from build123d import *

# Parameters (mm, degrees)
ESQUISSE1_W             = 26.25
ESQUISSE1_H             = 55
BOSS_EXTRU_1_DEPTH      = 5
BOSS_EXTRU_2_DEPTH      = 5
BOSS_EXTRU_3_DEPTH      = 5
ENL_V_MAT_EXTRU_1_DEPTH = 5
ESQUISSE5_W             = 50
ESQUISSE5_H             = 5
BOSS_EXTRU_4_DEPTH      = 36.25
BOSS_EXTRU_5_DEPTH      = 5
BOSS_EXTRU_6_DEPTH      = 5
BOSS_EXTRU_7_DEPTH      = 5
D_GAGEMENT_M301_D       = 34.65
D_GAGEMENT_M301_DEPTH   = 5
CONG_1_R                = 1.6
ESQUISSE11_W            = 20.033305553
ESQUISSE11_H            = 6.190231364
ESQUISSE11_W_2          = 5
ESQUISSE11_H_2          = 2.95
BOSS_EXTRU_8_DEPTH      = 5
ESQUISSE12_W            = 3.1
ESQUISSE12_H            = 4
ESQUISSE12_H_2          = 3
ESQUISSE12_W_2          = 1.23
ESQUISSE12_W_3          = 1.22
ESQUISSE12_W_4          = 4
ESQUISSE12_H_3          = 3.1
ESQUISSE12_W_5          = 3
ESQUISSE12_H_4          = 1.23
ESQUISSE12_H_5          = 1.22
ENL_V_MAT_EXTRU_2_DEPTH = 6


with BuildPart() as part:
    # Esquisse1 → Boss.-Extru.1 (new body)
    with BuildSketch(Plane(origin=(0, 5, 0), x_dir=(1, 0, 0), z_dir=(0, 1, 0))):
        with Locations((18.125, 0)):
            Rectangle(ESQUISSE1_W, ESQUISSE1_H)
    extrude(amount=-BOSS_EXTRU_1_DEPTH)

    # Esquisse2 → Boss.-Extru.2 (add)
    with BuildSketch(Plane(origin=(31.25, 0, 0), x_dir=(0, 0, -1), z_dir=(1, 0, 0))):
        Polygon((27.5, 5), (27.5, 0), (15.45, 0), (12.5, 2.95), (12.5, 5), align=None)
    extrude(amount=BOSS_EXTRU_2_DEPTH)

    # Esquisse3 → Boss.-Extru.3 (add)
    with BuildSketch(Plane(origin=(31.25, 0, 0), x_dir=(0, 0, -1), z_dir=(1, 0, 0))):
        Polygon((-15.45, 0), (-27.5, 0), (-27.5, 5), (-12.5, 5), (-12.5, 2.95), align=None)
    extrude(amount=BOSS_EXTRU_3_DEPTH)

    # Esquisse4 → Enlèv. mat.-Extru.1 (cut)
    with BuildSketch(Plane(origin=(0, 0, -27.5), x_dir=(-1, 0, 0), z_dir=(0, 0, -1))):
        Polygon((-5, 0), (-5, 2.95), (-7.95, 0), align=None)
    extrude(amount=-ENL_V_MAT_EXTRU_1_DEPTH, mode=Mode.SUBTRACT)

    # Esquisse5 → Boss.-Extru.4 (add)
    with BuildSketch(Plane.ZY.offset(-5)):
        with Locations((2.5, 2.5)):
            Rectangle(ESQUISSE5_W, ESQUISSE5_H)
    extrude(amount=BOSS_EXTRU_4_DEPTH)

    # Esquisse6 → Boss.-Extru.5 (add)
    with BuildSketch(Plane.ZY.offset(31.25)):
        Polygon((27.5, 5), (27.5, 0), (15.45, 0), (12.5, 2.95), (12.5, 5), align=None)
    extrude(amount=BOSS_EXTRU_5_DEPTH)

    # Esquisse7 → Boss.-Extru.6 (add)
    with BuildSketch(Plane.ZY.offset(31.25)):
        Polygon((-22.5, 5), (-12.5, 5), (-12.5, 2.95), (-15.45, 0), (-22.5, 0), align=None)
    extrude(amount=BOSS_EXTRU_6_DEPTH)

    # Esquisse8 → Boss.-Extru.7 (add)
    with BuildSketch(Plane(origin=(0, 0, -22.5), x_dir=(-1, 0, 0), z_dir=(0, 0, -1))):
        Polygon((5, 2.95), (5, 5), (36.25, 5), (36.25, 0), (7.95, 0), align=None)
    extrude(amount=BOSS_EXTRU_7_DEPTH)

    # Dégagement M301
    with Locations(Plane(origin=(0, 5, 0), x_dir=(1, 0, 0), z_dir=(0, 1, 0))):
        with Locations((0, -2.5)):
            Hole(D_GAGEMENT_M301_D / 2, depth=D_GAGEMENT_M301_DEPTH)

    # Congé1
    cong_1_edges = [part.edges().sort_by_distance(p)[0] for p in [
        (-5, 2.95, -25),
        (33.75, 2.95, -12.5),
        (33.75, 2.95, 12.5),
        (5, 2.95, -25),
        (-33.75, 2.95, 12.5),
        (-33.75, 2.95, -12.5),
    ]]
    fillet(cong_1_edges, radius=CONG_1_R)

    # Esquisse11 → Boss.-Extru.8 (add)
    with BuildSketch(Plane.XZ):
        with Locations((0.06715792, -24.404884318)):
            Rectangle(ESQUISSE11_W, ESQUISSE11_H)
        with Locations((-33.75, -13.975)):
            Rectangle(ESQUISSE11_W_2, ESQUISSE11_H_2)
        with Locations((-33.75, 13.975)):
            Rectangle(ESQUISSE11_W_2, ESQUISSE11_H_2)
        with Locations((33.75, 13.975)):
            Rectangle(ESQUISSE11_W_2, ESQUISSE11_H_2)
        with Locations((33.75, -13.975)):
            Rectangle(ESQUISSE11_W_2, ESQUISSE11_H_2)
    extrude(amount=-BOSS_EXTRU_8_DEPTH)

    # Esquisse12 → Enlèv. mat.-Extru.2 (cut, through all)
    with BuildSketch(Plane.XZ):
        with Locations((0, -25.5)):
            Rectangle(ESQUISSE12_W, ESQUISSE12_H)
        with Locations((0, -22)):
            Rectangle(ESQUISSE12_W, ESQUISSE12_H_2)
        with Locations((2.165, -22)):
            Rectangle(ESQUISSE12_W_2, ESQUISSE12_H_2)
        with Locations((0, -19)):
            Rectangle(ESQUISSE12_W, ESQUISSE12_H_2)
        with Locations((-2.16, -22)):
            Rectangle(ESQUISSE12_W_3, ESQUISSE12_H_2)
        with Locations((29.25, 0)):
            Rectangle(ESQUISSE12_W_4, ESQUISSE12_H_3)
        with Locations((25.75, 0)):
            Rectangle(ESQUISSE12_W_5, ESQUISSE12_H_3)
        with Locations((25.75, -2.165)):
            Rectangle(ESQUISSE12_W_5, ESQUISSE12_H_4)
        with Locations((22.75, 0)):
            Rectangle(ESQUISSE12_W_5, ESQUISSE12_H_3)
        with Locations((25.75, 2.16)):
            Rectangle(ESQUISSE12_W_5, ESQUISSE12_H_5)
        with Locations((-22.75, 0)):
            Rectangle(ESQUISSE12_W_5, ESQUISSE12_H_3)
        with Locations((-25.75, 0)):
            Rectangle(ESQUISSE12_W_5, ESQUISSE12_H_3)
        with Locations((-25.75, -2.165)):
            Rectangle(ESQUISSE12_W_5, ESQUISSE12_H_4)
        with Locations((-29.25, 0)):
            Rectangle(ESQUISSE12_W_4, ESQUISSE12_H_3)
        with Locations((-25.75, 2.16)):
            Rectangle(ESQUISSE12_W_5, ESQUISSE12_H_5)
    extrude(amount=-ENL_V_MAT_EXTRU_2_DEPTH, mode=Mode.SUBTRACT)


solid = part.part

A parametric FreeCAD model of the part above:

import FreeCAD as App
import Part
import Sketcher
from FreeCAD import Vector
Q = App.Units.Quantity


def edges_at(feature, points):
    """Names of the edges that pass closest to the given points."""
    edges = feature.Shape.Edges
    near = lambda p: min(range(len(edges)), key=lambda i: edges[i].distToShape(Part.Vertex(*p))[0])
    return sorted({f"Edge{near(p) + 1}" for p in points})


def add_polygon(sketch, points):
    """Adds a closed chain of lines whose ends are joined by coincident constraints."""
    first, n = sketch.GeometryCount, len(points)
    for a, b in zip(points, points[1:] + points[:1]):
        sketch.addGeometry(Part.LineSegment(App.Vector(*a, 0), App.Vector(*b, 0)), False)
    for i in range(n):
        sketch.addConstraint(Sketcher.Constraint("Coincident", first + i, 2, first + (i + 1) % n, 1))

doc = App.newDocument("Part")
body = doc.addObject("PartDesign::Body", "Body")

# Sketch on XZ plane
sketch1 = body.newObject("Sketcher::SketchObject", "Sketch")
sketch1.AttachmentSupport = (doc.getObject("XZ_Plane"), [""])
sketch1.MapMode = "FlatFace"
sketch1.AttachmentOffset = App.Placement(Vector(0, 0, -5), App.Rotation())
add_polygon(sketch1, [(5, -28), (5, 28), (31, 28), (31, -28)])  # lines 0-3
sketch1.addConstraint(Sketcher.Constraint("Vertical", 0))
sketch1.addConstraint(Sketcher.Constraint("Horizontal", 1))
sketch1.addConstraint(Sketcher.Constraint("Vertical", 2))
sketch1.addConstraint(Sketcher.Constraint("Horizontal", 3))
sketch1.addConstraint(Sketcher.Constraint("DistanceY", 0, 1, 0, 2, 55.0))
sketch1.addConstraint(Sketcher.Constraint("DistanceX", -1, 1, 0, 2, 5.0))
sketch1.addConstraint(Sketcher.Constraint("DistanceX", 1, 1, 1, 2, 26.25))
sketch1.addConstraint(Sketcher.Constraint("DistanceY", -1, 1, 0, 2, 27.5))
pad1 = body.newObject("PartDesign::Pad", "Pad")
pad1.Profile = sketch1
pad1.Length = 5

# Sketch on YZ plane
sketch2 = body.newObject("Sketcher::SketchObject", "Sketch001")
sketch2.AttachmentSupport = (doc.getObject("YZ_Plane"), [""])
sketch2.MapMode = "FlatFace"
sketch2.AttachmentOffset = App.Placement(Vector(0, 0, 31.25), App.Rotation())
add_polygon(sketch2, [(0, -27.5), (5, -27.5), (5, -12.5), (3, -12.5), (0, -15.4)])  # lines 0-4
sketch2.addConstraint(Sketcher.Constraint("Horizontal", 0))
sketch2.addConstraint(Sketcher.Constraint("Vertical", 1))
sketch2.addConstraint(Sketcher.Constraint("Horizontal", 2))
sketch2.addConstraint(Sketcher.Constraint("Vertical", 4))
sketch2.addConstraint(Sketcher.Constraint("PointOnObject", 3, 2, -2))
sketch2.addConstraint(Sketcher.Constraint("DistanceX", 0, 1, 0, 2, 5.0))
sketch2.addConstraint(Sketcher.Constraint("DistanceY", 1, 1, 1, 2, 15.0))
sketch2.addConstraint(Sketcher.Constraint("Angle", 3, Q("-135 deg")))
sketch2.addConstraint(Sketcher.Constraint("DistanceX", 2, 2, 2, 1, 2.05))
sketch2.addConstraint(Sketcher.Constraint("DistanceY", 0, 2, -1, 1, 27.5))
pad2 = body.newObject("PartDesign::Pad", "Pad001")
pad2.Profile = sketch2
pad2.Length = 5

# Sketch on YZ plane
sketch3 = body.newObject("Sketcher::SketchObject", "Sketch002")
sketch3.AttachmentSupport = (doc.getObject("YZ_Plane"), [""])
sketch3.MapMode = "FlatFace"
sketch3.AttachmentOffset = App.Placement(Vector(0, 0, 31.25), App.Rotation())
add_polygon(sketch3, [(0, 27.5), (0, 15.4), (3, 12.5), (5, 12.5), (5, 27.5)])  # lines 0-4
sketch3.addConstraint(Sketcher.Constraint("Vertical", 0))
sketch3.addConstraint(Sketcher.Constraint("Horizontal", 2))
sketch3.addConstraint(Sketcher.Constraint("Vertical", 3))
sketch3.addConstraint(Sketcher.Constraint("Horizontal", 4))
sketch3.addConstraint(Sketcher.Constraint("PointOnObject", 0, 2, -2))
sketch3.addConstraint(Sketcher.Constraint("DistanceX", 4, 2, 4, 1, 5.0))
sketch3.addConstraint(Sketcher.Constraint("DistanceY", 3, 1, 3, 2, 15.0))
sketch3.addConstraint(Sketcher.Constraint("Angle", 1, Q("-45 deg")))
sketch3.addConstraint(Sketcher.Constraint("DistanceX", 2, 1, 2, 2, 2.05))
sketch3.addConstraint(Sketcher.Constraint("DistanceY", -1, 1, 1, 2, 12.5))
pad3 = body.newObject("PartDesign::Pad", "Pad002")
pad3.Profile = sketch3
pad3.Length = 5

# Sketch on XY plane
sketch4 = body.newObject("Sketcher::SketchObject", "Sketch003")
sketch4.AttachmentSupport = (doc.getObject("XY_Plane"), [""])
sketch4.MapMode = "FlatFace"
sketch4.AttachmentOffset = App.Placement(Vector(0, 0, -27.5), App.Rotation())
add_polygon(sketch4, [(5, 0), (5, 3), (8, 0)])  # lines 0-2
sketch4.addConstraint(Sketcher.Constraint("Vertical", 0))
sketch4.addConstraint(Sketcher.Constraint("Horizontal", 2))
sketch4.addConstraint(Sketcher.Constraint("PointOnObject", 1, 2, -1))
sketch4.addConstraint(Sketcher.Constraint("Equal", 2, 0))
sketch4.addConstraint(Sketcher.Constraint("DistanceX", -1, 1, 0, 2, 5.0))
sketch4.addConstraint(Sketcher.Constraint("DistanceX", 2, 2, 2, 1, 2.95))
pocket1 = body.newObject("PartDesign::Pocket", "Pocket")
pocket1.Profile = sketch4
pocket1.Length = 5
pocket1.Reversed = True

# Sketch on YZ plane
sketch5 = body.newObject("Sketcher::SketchObject", "Sketch004")
sketch5.AttachmentSupport = (doc.getObject("YZ_Plane"), [""])
sketch5.MapMode = "FlatFace"
sketch5.AttachmentOffset = App.Placement(Vector(0, 0, 5), App.Rotation())
add_polygon(sketch5, [(5, -22), (0, -22), (0, 28), (5, 28)])  # lines 0-3
sketch5.addConstraint(Sketcher.Constraint("Horizontal", 0))
sketch5.addConstraint(Sketcher.Constraint("Vertical", 1))
sketch5.addConstraint(Sketcher.Constraint("Horizontal", 2))
sketch5.addConstraint(Sketcher.Constraint("Vertical", 3))
sketch5.addConstraint(Sketcher.Constraint("PointOnObject", 0, 2, -2))
sketch5.addConstraint(Sketcher.Constraint("DistanceX", 0, 2, 0, 1, 5.0))
sketch5.addConstraint(Sketcher.Constraint("DistanceY", 1, 1, 1, 2, 50.0))
sketch5.addConstraint(Sketcher.Constraint("DistanceY", 0, 2, -1, 1, 22.5))
pad4 = body.newObject("PartDesign::Pad", "Pad003")
pad4.Profile = sketch5
pad4.Length = 36.25
pad4.Reversed = True

# Sketch on YZ plane
sketch6 = body.newObject("Sketcher::SketchObject", "Sketch005")
sketch6.AttachmentSupport = (doc.getObject("YZ_Plane"), [""])
sketch6.MapMode = "FlatFace"
sketch6.AttachmentOffset = App.Placement(Vector(0, 0, -31.25), App.Rotation())
add_polygon(sketch6, [(0, 27.5), (5, 27.5), (5, 12.5), (3, 12.5), (0, 15.4)])  # lines 0-4
sketch6.addConstraint(Sketcher.Constraint("Horizontal", 0))
sketch6.addConstraint(Sketcher.Constraint("Vertical", 1))
sketch6.addConstraint(Sketcher.Constraint("Horizontal", 2))
sketch6.addConstraint(Sketcher.Constraint("Vertical", 4))
sketch6.addConstraint(Sketcher.Constraint("PointOnObject", 3, 2, -2))
sketch6.addConstraint(Sketcher.Constraint("DistanceX", 0, 1, 0, 2, 5.0))
sketch6.addConstraint(Sketcher.Constraint("DistanceY", 1, 2, 1, 1, 15.0))
sketch6.addConstraint(Sketcher.Constraint("Angle", 3, Q("135 deg")))
sketch6.addConstraint(Sketcher.Constraint("DistanceX", 2, 2, 2, 1, 2.05))
sketch6.addConstraint(Sketcher.Constraint("DistanceY", -1, 1, 0, 2, 27.5))
pad5 = body.newObject("PartDesign::Pad", "Pad004")
pad5.Profile = sketch6
pad5.Length = 5
pad5.Reversed = True

# Sketch on YZ plane
sketch7 = body.newObject("Sketcher::SketchObject", "Sketch006")
sketch7.AttachmentSupport = (doc.getObject("YZ_Plane"), [""])
sketch7.MapMode = "FlatFace"
sketch7.AttachmentOffset = App.Placement(Vector(0, 0, -31.25), App.Rotation())
add_polygon(sketch7, [(5, -12.5), (5, -22.5), (0, -22.5), (0, -15.4), (3, -12.5)])  # lines 0-4
sketch7.addConstraint(Sketcher.Constraint("Vertical", 0))
sketch7.addConstraint(Sketcher.Constraint("Horizontal", 1))
sketch7.addConstraint(Sketcher.Constraint("Vertical", 2))
sketch7.addConstraint(Sketcher.Constraint("Horizontal", 4))
sketch7.addConstraint(Sketcher.Constraint("PointOnObject", 1, 2, -2))
sketch7.addConstraint(Sketcher.Constraint("DistanceX", 1, 2, 1, 1, 5.0))
sketch7.addConstraint(Sketcher.Constraint("DistanceY", 0, 2, 0, 1, 10.0))
sketch7.addConstraint(Sketcher.Constraint("Angle", 3, Q("45 deg")))
sketch7.addConstraint(Sketcher.Constraint("DistanceX", 4, 1, 4, 2, 2.05))
sketch7.addConstraint(Sketcher.Constraint("DistanceY", 0, 2, -1, 1, 22.5))
pad6 = body.newObject("PartDesign::Pad", "Pad005")
pad6.Profile = sketch7
pad6.Length = 5
pad6.Reversed = True

# Sketch on XY plane
sketch8 = body.newObject("Sketcher::SketchObject", "Sketch007")
sketch8.AttachmentSupport = (doc.getObject("XY_Plane"), [""])
sketch8.MapMode = "FlatFace"
sketch8.AttachmentOffset = App.Placement(Vector(0, 0, -22.5), App.Rotation())
add_polygon(sketch8, [(-5, 5), (-5, 3), (-8, 0), (-36.2, 0), (-36.2, 5)])  # lines 0-4
sketch8.addConstraint(Sketcher.Constraint("Vertical", 0))
sketch8.addConstraint(Sketcher.Constraint("Horizontal", 2))
sketch8.addConstraint(Sketcher.Constraint("Vertical", 3))
sketch8.addConstraint(Sketcher.Constraint("Horizontal", 4))
sketch8.addConstraint(Sketcher.Constraint("PointOnObject", 1, 2, -1))
sketch8.addConstraint(Sketcher.Constraint("DistanceY", 3, 1, 3, 2, 5.0))
sketch8.addConstraint(Sketcher.Constraint("Angle", 1, Q("-135 deg")))
sketch8.addConstraint(Sketcher.Constraint("DistanceX", 2, 2, 2, 1, 28.3))
sketch8.addConstraint(Sketcher.Constraint("DistanceX", 0, 2, -1, 1, 5.0))
sketch8.addConstraint(Sketcher.Constraint("DistanceX", 4, 1, 4, 2, 31.25))
pad7 = body.newObject("PartDesign::Pad", "Pad006")
pad7.Profile = sketch8
pad7.Length = 5
pad7.Reversed = True

# Sketch on XZ plane
sketch9 = body.newObject("Sketcher::SketchObject", "Sketch008")
sketch9.AttachmentSupport = (doc.getObject("XZ_Plane"), [""])
sketch9.MapMode = "FlatFace"
sketch9.AttachmentOffset = App.Placement(Vector(0, 0, -5), App.Rotation())
sketch9.addGeometry(Part.Circle(Vector(0, 2, 0), Vector(0, 0, 1), 17), False)
sketch9.addConstraint(Sketcher.Constraint("PointOnObject", 0, 3, -2))
sketch9.addConstraint(Sketcher.Constraint("Diameter", 0, 34.65))
sketch9.addConstraint(Sketcher.Constraint("DistanceY", -1, 1, 0, 3, 2.5))
doc.recompute()
hole = body.newObject("PartDesign::Hole", "Hole")
hole.Profile = sketch9
hole.ThreadType = "None"
hole.Diameter = 34.65
hole.DepthType = "Dimension"
hole.Depth = 5
hole.DrillPoint = "Flat"
hole.Reversed = True
doc.recompute()

fillet = body.newObject("PartDesign::Fillet", "Fillet")
fillet.Base = (hole, edges_at(hole, [
    (-5, 2.95, -25),
    (33.75, 2.95, -12.5),
    (33.75, 2.95, 12.5),
    (5, 2.95, -25),
    (-33.75, 2.95, 12.5),
    (-33.75, 2.95, -12.5),
]))
fillet.Radius = 1.6

# Sketch on XZ plane
sketch10 = body.newObject("Sketcher::SketchObject", "Sketch009")
sketch10.AttachmentSupport = (doc.getObject("XZ_Plane"), [""])
sketch10.MapMode = "FlatFace"
add_polygon(sketch10, [(-9.9, -21.3), (-9.9, -27.5), (10.1, -27.5), (10.1, -21.3)])  # lines 0-3
add_polygon(sketch10, [(-36.2, -12.5), (-36.2, -15.4), (-31.2, -15.4), (-31.2, -12.5)])  # lines 4-7
add_polygon(sketch10, [(-36.2, 15.4), (-36.2, 12.5), (-31.2, 12.5), (-31.2, 15.4)])  # lines 8-11
add_polygon(sketch10, [(31.2, 15.4), (31.2, 12.5), (36.2, 12.5), (36.2, 15.4)])  # lines 12-15
add_polygon(sketch10, [(31.2, -12.5), (31.2, -15.4), (36.2, -15.4), (36.2, -12.5)])  # lines 16-19
sketch10.addConstraint(Sketcher.Constraint("Vertical", 0))
sketch10.addConstraint(Sketcher.Constraint("Horizontal", 1))
sketch10.addConstraint(Sketcher.Constraint("Vertical", 2))
sketch10.addConstraint(Sketcher.Constraint("Horizontal", 3))
sketch10.addConstraint(Sketcher.Constraint("Vertical", 4))
sketch10.addConstraint(Sketcher.Constraint("Horizontal", 5))
sketch10.addConstraint(Sketcher.Constraint("Vertical", 6))
sketch10.addConstraint(Sketcher.Constraint("Horizontal", 7))
sketch10.addConstraint(Sketcher.Constraint("Vertical", 8))
sketch10.addConstraint(Sketcher.Constraint("Horizontal", 9))
sketch10.addConstraint(Sketcher.Constraint("Vertical", 10))
sketch10.addConstraint(Sketcher.Constraint("Horizontal", 11))
sketch10.addConstraint(Sketcher.Constraint("Vertical", 12))
sketch10.addConstraint(Sketcher.Constraint("Horizontal", 13))
sketch10.addConstraint(Sketcher.Constraint("Vertical", 14))
sketch10.addConstraint(Sketcher.Constraint("Horizontal", 15))
sketch10.addConstraint(Sketcher.Constraint("Vertical", 16))
sketch10.addConstraint(Sketcher.Constraint("Horizontal", 17))
sketch10.addConstraint(Sketcher.Constraint("Vertical", 18))
sketch10.addConstraint(Sketcher.Constraint("Horizontal", 19))
sketch10.addConstraint(Sketcher.Constraint("Symmetric", 6, 2, 12, 2, -1, 1))
sketch10.addConstraint(Sketcher.Constraint("Symmetric", 4, 2, 14, 2, -1, 1))
sketch10.addConstraint(Sketcher.Constraint("Symmetric", 10, 2, 16, 2, -1, 1))
sketch10.addConstraint(Sketcher.Constraint("Symmetric", 8, 2, 18, 2, -1, 1))
sketch10.addConstraint(Sketcher.Constraint("Symmetric", 9, 2, 12, 2, -2))
sketch10.addConstraint(Sketcher.Constraint("Symmetric", 11, 2, 14, 2, -2))
sketch10.addConstraint(Sketcher.Constraint("DistanceX", 5, 1, 5, 2, 5.0))
sketch10.addConstraint(Sketcher.Constraint("DistanceY", 0, 2, 6, 2, 15.0))
sketch10.addConstraint(Sketcher.Constraint("DistanceY", 7, 2, 8, 2, 25.0))
sketch10.addConstraint(Sketcher.Constraint("DistanceY", 4, 2, 4, 1, 2.95))
sketch10.addConstraint(Sketcher.Constraint("DistanceX", 9, 2, 12, 2, 62.5))
sketch10.addConstraint(Sketcher.Constraint("DistanceY", 0, 2, 0, 1, 6.190231))
sketch10.addConstraint(Sketcher.Constraint("DistanceX", 1, 1, 1, 2, 20.033306))
sketch10.addConstraint(Sketcher.Constraint("DistanceX", -1, 1, 1, 2, 10.083811))
pad8 = body.newObject("PartDesign::Pad", "Pad007")
pad8.Profile = sketch10
pad8.Length = 5
pad8.Reversed = True

# Sketch on XZ plane
sketch11 = body.newObject("Sketcher::SketchObject", "Sketch010")
sketch11.AttachmentSupport = (doc.getObject("XZ_Plane"), [""])
sketch11.MapMode = "FlatFace"
add_polygon(sketch11, [(-1.6, -27.5), (1.6, -27.5), (1.6, -23.5), (2.8, -23.5), (2.8, -20.5), (1.6, -20.5), (1.6, -17.5), (-1.6, -17.5), (-1.6, -20.5), (-2.8, -20.5), (-2.8, -23.5), (-1.6, -23.5)])  # lines 0-11
add_polygon(sketch11, [(31.2, -1.6), (31.2, 1.6), (27.2, 1.6), (27.2, 2.8), (24.2, 2.8), (24.2, 1.6), (21.2, 1.6), (21.2, -1.6), (24.2, -1.6), (24.2, -2.8), (27.2, -2.8), (27.2, -1.6)])  # lines 12-23
add_polygon(sketch11, [(-21.2, -1.6), (-21.2, 1.6), (-24.2, 1.6), (-24.2, 2.8), (-27.2, 2.8), (-27.2, 1.6), (-31.2, 1.6), (-31.2, -1.6), (-27.2, -1.6), (-27.2, -2.8), (-24.2, -2.8), (-24.2, -1.6)])  # lines 24-35
sketch11.addConstraint(Sketcher.Constraint("Horizontal", 0))
sketch11.addConstraint(Sketcher.Constraint("Vertical", 1))
sketch11.addConstraint(Sketcher.Constraint("Horizontal", 2))
sketch11.addConstraint(Sketcher.Constraint("Vertical", 3))
sketch11.addConstraint(Sketcher.Constraint("Horizontal", 4))
sketch11.addConstraint(Sketcher.Constraint("Vertical", 5))
sketch11.addConstraint(Sketcher.Constraint("Horizontal", 6))
sketch11.addConstraint(Sketcher.Constraint("Vertical", 7))
sketch11.addConstraint(Sketcher.Constraint("Horizontal", 8))
sketch11.addConstraint(Sketcher.Constraint("Vertical", 9))
sketch11.addConstraint(Sketcher.Constraint("Horizontal", 10))
sketch11.addConstraint(Sketcher.Constraint("Vertical", 11))
sketch11.addConstraint(Sketcher.Constraint("Vertical", 12))
sketch11.addConstraint(Sketcher.Constraint("Horizontal", 13))
sketch11.addConstraint(Sketcher.Constraint("Vertical", 14))
sketch11.addConstraint(Sketcher.Constraint("Horizontal", 15))
sketch11.addConstraint(Sketcher.Constraint("Vertical", 16))
sketch11.addConstraint(Sketcher.Constraint("Horizontal", 17))
sketch11.addConstraint(Sketcher.Constraint("Vertical", 18))
sketch11.addConstraint(Sketcher.Constraint("Horizontal", 19))
sketch11.addConstraint(Sketcher.Constraint("Vertical", 20))
sketch11.addConstraint(Sketcher.Constraint("Horizontal", 21))
sketch11.addConstraint(Sketcher.Constraint("Vertical", 22))
sketch11.addConstraint(Sketcher.Constraint("Horizontal", 23))
sketch11.addConstraint(Sketcher.Constraint("Vertical", 24))
sketch11.addConstraint(Sketcher.Constraint("Horizontal", 25))
sketch11.addConstraint(Sketcher.Constraint("Vertical", 26))
sketch11.addConstraint(Sketcher.Constraint("Horizontal", 27))
sketch11.addConstraint(Sketcher.Constraint("Vertical", 28))
sketch11.addConstraint(Sketcher.Constraint("Horizontal", 29))
sketch11.addConstraint(Sketcher.Constraint("Vertical", 30))
sketch11.addConstraint(Sketcher.Constraint("Horizontal", 31))
sketch11.addConstraint(Sketcher.Constraint("Vertical", 32))
sketch11.addConstraint(Sketcher.Constraint("Horizontal", 33))
sketch11.addConstraint(Sketcher.Constraint("Vertical", 34))
sketch11.addConstraint(Sketcher.Constraint("Horizontal", 35))
sketch11.addConstraint(Sketcher.Constraint("Symmetric", 18, 2, 24, 2, -1, 1))
sketch11.addConstraint(Sketcher.Constraint("Symmetric", 22, 2, 28, 2, -1, 1))
sketch11.addConstraint(Sketcher.Constraint("Symmetric", 12, 2, 30, 2, -1, 1))
sketch11.addConstraint(Sketcher.Constraint("Symmetric", 16, 2, 34, 2, -1, 1))
sketch11.addConstraint(Sketcher.Constraint("Symmetric", 4, 2, 7, 2, -2))
sketch11.addConstraint(Sketcher.Constraint("Symmetric", 1, 2, 10, 2, -2))
sketch11.addConstraint(Sketcher.Constraint("Symmetric", 16, 2, 25, 2, -2))
sketch11.addConstraint(Sketcher.Constraint("Symmetric", 14, 2, 27, 2, -2))
sketch11.addConstraint(Sketcher.Constraint("Symmetric", 22, 2, 31, 2, -2))
sketch11.addConstraint(Sketcher.Constraint("Symmetric", 20, 2, 33, 2, -2))
sketch11.addConstraint(Sketcher.Constraint("Horizontal", 13, 2, 16, 2))
sketch11.addConstraint(Sketcher.Constraint("Vertical", 1, 2, 4, 2))
sketch11.addConstraint(Sketcher.Constraint("Equal", 15, 17))
sketch11.addConstraint(Sketcher.Constraint("Equal", 31, 1))
sketch11.addConstraint(Sketcher.Constraint("Equal", 35, 3))
sketch11.addConstraint(Sketcher.Constraint("Equal", 3, 5))
sketch11.addConstraint(Sketcher.Constraint("Equal", 6, 12))
sketch11.addConstraint(Sketcher.Constraint("Equal", 10, 14))
sketch11.addConstraint(Sketcher.Constraint("Equal", 4, 20))
sketch11.addConstraint(Sketcher.Constraint("DistanceX", 13, 2, 13, 1, 4.0))
sketch11.addConstraint(Sketcher.Constraint("DistanceX", 15, 2, 15, 1, 3.0))
sketch11.addConstraint(Sketcher.Constraint("DistanceX", 0, 1, 0, 2, 3.1))
sketch11.addConstraint(Sketcher.Constraint("DistanceX", 2, 1, 2, 2, 1.23))
sketch11.addConstraint(Sketcher.Constraint("DistanceX", 8, 2, 8, 1, 1.22))
sketch11.addConstraint(Sketcher.Constraint("DistanceY", 0, 2, -1, 1, 27.5))
sketch11.addConstraint(Sketcher.Constraint("DistanceX", 5, 2, 12, 2, 29.7))
pocket2 = body.newObject("PartDesign::Pocket", "Pocket001")
pocket2.Profile = sketch11
pocket2.Type = "ThroughAll"

doc.recompute()
